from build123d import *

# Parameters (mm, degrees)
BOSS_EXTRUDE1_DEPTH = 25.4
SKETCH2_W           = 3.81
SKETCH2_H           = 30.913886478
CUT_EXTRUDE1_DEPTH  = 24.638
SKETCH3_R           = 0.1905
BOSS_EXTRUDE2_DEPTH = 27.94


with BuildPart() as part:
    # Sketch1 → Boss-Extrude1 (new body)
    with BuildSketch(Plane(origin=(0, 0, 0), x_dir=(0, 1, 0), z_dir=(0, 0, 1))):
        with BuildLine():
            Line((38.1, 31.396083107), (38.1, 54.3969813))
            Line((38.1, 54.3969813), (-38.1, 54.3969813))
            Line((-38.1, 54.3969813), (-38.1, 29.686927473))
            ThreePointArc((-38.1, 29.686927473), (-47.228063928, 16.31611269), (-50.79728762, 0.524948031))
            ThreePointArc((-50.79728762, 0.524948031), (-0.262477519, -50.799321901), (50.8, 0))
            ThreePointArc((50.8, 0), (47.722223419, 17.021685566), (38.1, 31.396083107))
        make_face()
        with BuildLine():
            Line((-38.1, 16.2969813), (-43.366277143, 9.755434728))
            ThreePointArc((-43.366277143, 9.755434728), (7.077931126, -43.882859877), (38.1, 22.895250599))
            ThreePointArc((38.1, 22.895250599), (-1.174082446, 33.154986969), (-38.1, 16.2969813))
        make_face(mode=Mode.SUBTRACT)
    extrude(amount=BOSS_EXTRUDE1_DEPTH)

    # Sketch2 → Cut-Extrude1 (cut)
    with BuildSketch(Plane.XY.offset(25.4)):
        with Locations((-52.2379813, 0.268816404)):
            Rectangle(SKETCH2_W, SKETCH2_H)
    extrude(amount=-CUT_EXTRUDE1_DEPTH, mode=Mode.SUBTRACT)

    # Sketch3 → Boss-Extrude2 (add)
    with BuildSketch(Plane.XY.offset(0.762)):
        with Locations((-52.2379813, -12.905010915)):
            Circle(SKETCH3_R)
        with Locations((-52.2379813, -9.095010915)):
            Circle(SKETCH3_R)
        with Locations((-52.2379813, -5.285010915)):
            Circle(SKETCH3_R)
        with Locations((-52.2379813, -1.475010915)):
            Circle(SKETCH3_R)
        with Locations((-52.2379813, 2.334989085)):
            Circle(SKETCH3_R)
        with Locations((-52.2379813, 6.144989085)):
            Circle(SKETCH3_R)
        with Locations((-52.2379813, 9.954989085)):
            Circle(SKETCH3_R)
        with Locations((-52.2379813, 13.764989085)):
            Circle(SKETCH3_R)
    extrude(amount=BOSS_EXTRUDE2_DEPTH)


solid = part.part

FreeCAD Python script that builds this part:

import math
import FreeCAD as App
import Part
import Sketcher
Q = App.Units.Quantity

doc = App.newDocument("Part")
params = doc.addObject("Spreadsheet::Sheet", "Params")
for row, (alias, value) in enumerate([
    ("sketch1_radius", "2 in"),
    ("sketch1_height", "3 in"),
    ("sketch1_radius2", "1.75 in"),
    ("pad1_length", "1 in"),
    ("sketch2_width", "0.15 in"),
    ("pocket1_length", "0.97 in"),
    ("sketch3_diameter", "0.015 in"),
    ("pad2_length", "1.1 in"),
], start=1):
    params.set(f"A{row}", alias)
    params.set(f"B{row}", "=" + value)
    params.setAlias(f"B{row}", alias)

body = doc.addObject("PartDesign::Body", "Body")

# Sketch on XY plane
sketch1 = body.newObject("Sketcher::SketchObject", "Sketch")
sketch1.AttachmentSupport = (doc.getObject("XY_Plane"), [""])
sketch1.MapMode = "FlatFace"
sketch1.addGeometry([
    Part.LineSegment(App.Vector(-31.396083, 38.1, 0), App.Vector(-54.396981, 38.1, 0)),  # 0
    Part.LineSegment(App.Vector(-54.396981, 38.1, 0), App.Vector(-54.396981, -38.1, 0)),  # 1
    Part.LineSegment(App.Vector(-54.396981, -38.1, 0), App.Vector(-29.686927, -38.1, 0)),  # 2
    Part.ArcOfCircle(Part.Circle(App.Vector(0.941641, -7.59202, 0), App.Vector(0, 0, 1), 43.230152), math.radians(-135.113012), math.radians(-91.94414)),  # 3
    Part.ArcOfCircle(Part.Circle(App.Vector(0, 0, 0), App.Vector(0, 0, 1), 50.8), math.radians(-90.592084), math.radians(90)),  # 4
    Part.ArcOfCircle(Part.Circle(App.Vector(-1.128238, 8.431515, 0), App.Vector(0, 0, 1), 42.383505), math.radians(88.474621), math.radians(135.572935)),  # 5
    Part.LineSegment(App.Vector(-9.755435, -43.366277, 0), App.Vector(-16.296981, -38.1, 0)),  # 6
    Part.ArcOfCircle(Part.Circle(App.Vector(27.154348, 4.048191, 0), App.Vector(0, 0, 1), 60.535015), math.radians(145.770145), math.radians(224.127816)),  # 7
    Part.ArcOfCircle(Part.Circle(App.Vector(0, 0, 0), App.Vector(0, 0, 1), 44.45), math.radians(-102.677897), math.radians(121.002719)),  # 8
], False)
sketch1.addConstraint([
    Sketcher.Constraint("Coincident", 0, 2, 1, 1),
    Sketcher.Constraint("Coincident", 1, 2, 2, 1),
    Sketcher.Constraint("Coincident", 2, 2, 3, 1),
    Sketcher.Constraint("Coincident", 3, 2, 4, 1),
    Sketcher.Constraint("Coincident", 4, 2, 5, 1),
    Sketcher.Constraint("Coincident", 5, 2, 0, 1),
    Sketcher.Constraint("Coincident", 6, 2, 7, 2),
    Sketcher.Constraint("Coincident", 7, 1, 8, 2),
    Sketcher.Constraint("Coincident", 8, 1, 6, 1),
    Sketcher.Constraint("Horizontal", 0),
    Sketcher.Constraint("Vertical", 1),
    Sketcher.Constraint("Horizontal", 2),
    Sketcher.Constraint("Coincident", 4, 3, -1, 1),
    Sketcher.Constraint("Coincident", 8, 3, -1, 1),
    Sketcher.Constraint("PointOnObject", 4, 2, -2),
    Sketcher.Constraint("Horizontal", 2, 2, 6, 2),
    Sketcher.Constraint("Horizontal", 5, 2, 7, 1),
    Sketcher.Constraint("Radius", 4, Q("2 in")),
    Sketcher.Constraint("DistanceY", 1, 2, 1, 1, Q("3 in")),
    Sketcher.Constraint("Radius", 8, Q("1.75 in")),
    Sketcher.Constraint("DistanceY", -1, 1, 0, 2, Q("1.5 in")),
    Sketcher.Constraint("DistanceX", 1, 2, 6, 2, Q("1.5 in")),
    Sketcher.Constraint("DistanceX", 0, 2, 0, 1, Q("23.000898 mm")),
    Sketcher.Constraint("Radius", 3, Q("43.230152 mm")),
    Sketcher.Constraint("Radius", 5, Q("42.383505 mm")),
    Sketcher.Constraint("Radius", 7, Q("60.535015 mm")),
    Sketcher.Constraint("DistanceX", 2, 1, 2, 2, Q("24.710054 mm")),
    Sketcher.Constraint("DistanceX", -1, 1, 3, 3, Q("0.941641 mm")),
    Sketcher.Constraint("DistanceY", 3, 3, -1, 1, Q("7.59202 mm")),
    Sketcher.Constraint("DistanceY", 3, 2, 8, 1, Q("7.43101 mm")),
])
sketch1.setExpression("Constraints[17]", "Params.sketch1_radius")
sketch1.setExpression("Constraints[18]", "Params.sketch1_height")
sketch1.setExpression("Constraints[19]", "Params.sketch1_radius2")
pad1 = body.newObject("PartDesign::Pad", "Pad")
pad1.Profile = sketch1
pad1.setExpression("Length", "Params.pad1_length")

# Sketch on XY plane
sketch2 = body.newObject("Sketcher::SketchObject", "Sketch001")
sketch2.AttachmentSupport = (doc.getObject("XY_Plane"), [""])
sketch2.MapMode = "FlatFace"
sketch2.AttachmentOffset = App.Placement(App.Vector(0, 0, 1 * 25.4), App.Rotation())
sketch2.addGeometry([
    Part.LineSegment(App.Vector(-54.142981, 15.72576, 0), App.Vector(-54.142981, -15.188127, 0)),
    Part.LineSegment(App.Vector(-54.142981, -15.188127, 0), App.Vector(-50.332981, -15.188127, 0)),
    Part.LineSegment(App.Vector(-50.332981, -15.188127, 0), App.Vector(-50.332981, 15.72576, 0)),
    Part.LineSegment(App.Vector(-50.332981, 15.72576, 0), App.Vector(-54.142981, 15.72576, 0)),
], False)
sketch2.addConstraint([
    Sketcher.Constraint("Coincident", 0, 2, 1, 1),
    Sketcher.Constraint("Coincident", 1, 2, 2, 1),
    Sketcher.Constraint("Coincident", 2, 2, 3, 1),
    Sketcher.Constraint("Coincident", 3, 2, 0, 1),
    Sketcher.Constraint("Vertical", 0),
    Sketcher.Constraint("Horizontal", 1),
    Sketcher.Constraint("Vertical", 2),
    Sketcher.Constraint("Horizontal", 3),
    Sketcher.Constraint("DistanceX", 1, 1, 1, 2, Q("0.15 in")),
    Sketcher.Constraint("DistanceY", 0, 2, 0, 1, Q("30.913886 mm")),
    Sketcher.Constraint("DistanceX", 0, 2, -1, 1, Q("54.142981 mm")),
    Sketcher.Constraint("DistanceY", -1, 1, 2, 2, Q("15.72576 mm")),
])
sketch2.setExpression("Constraints[8]", "Params.sketch2_width")
pocket1 = body.newObject("PartDesign::Pocket", "Pocket")
pocket1.Profile = sketch2
pocket1.setExpression("Length", "Params.pocket1_length")

# Sketch on XY plane
sketch3 = body.newObject("Sketcher::SketchObject", "Sketch002")
sketch3.AttachmentSupport = (doc.getObject("XY_Plane"), [""])
sketch3.MapMode = "FlatFace"
sketch3.AttachmentOffset = App.Placement(App.Vector(0, 0, 0.03 * 25.4), App.Rotation())
sketch3.addGeometry([
    Part.Circle(App.Vector(-52.237981, -12.905011, 0), App.Vector(0, 0, 1), 0.1905),  # 0
    Part.Circle(App.Vector(-52.237981, -9.095011, 0), App.Vector(0, 0, 1), 0.1905),  # 1
    Part.Circle(App.Vector(-52.237981, -5.285011, 0), App.Vector(0, 0, 1), 0.1905),  # 2
    Part.Circle(App.Vector(-52.237981, -1.475011, 0), App.Vector(0, 0, 1), 0.1905),  # 3
    Part.Circle(App.Vector(-52.237981, 2.334989, 0), App.Vector(0, 0, 1), 0.1905),  # 4
    Part.Circle(App.Vector(-52.237981, 6.144989, 0), App.Vector(0, 0, 1), 0.1905),  # 5
    Part.Circle(App.Vector(-52.237981, 9.954989, 0), App.Vector(0, 0, 1), 0.1905),  # 6
    Part.Circle(App.Vector(-52.237981, 13.764989, 0), App.Vector(0, 0, 1), 0.1905),  # 7
], False)
sketch3.addConstraint([
    Sketcher.Constraint("Equal", 0, 1),
    Sketcher.Constraint("Equal", 1, 2),
    Sketcher.Constraint("Equal", 2, 3),
    Sketcher.Constraint("Equal", 3, 4),
    Sketcher.Constraint("Equal", 4, 5),
    Sketcher.Constraint("Equal", 5, 6),
    Sketcher.Constraint("Equal", 6, 7),
    Sketcher.Constraint("Vertical", 0, 3, 1, 3),
    Sketcher.Constraint("Vertical", 1, 3, 2, 3),
    Sketcher.Constraint("Vertical", 2, 3, 3, 3),
    Sketcher.Constraint("Vertical", 3, 3, 4, 3),
    Sketcher.Constraint("Vertical", 4, 3, 5, 3),
    Sketcher.Constraint("Vertical", 5, 3, 6, 3),
    Sketcher.Constraint("Vertical", 6, 3, 7, 3),
    Sketcher.Constraint("Diameter", 0, Q("0.015 in")),
    Sketcher.Constraint("DistanceY", 0, 3, 2, 3, Q("0.3 in")),
    Sketcher.Constraint("DistanceY", 1, 3, 3, 3, Q("0.3 in")),
    Sketcher.Constraint("DistanceY", 2, 3, 4, 3, Q("0.3 in")),
    Sketcher.Constraint("DistanceY", 3, 3, 5, 3, Q("0.3 in")),
    Sketcher.Constraint("DistanceY", 4, 3, 6, 3, Q("0.3 in")),
    Sketcher.Constraint("DistanceY", 5, 3, 7, 3, Q("0.3 in")),
    Sketcher.Constraint("DistanceY", 0, 3, 1, 3, Q("0.15 in")),
    Sketcher.Constraint("DistanceX", 0, 3, -1, 1, Q("52.237981 mm")),
    Sketcher.Constraint("DistanceY", 0, 3, -1, 1, Q("12.905011 mm")),
])
sketch3.setExpression("Constraints[14]", "Params.sketch3_diameter")
pad2 = body.newObject("PartDesign::Pad", "Pad001")
pad2.Profile = sketch3
pad2.setExpression("Length", "Params.pad2_length")

doc.recompute()
